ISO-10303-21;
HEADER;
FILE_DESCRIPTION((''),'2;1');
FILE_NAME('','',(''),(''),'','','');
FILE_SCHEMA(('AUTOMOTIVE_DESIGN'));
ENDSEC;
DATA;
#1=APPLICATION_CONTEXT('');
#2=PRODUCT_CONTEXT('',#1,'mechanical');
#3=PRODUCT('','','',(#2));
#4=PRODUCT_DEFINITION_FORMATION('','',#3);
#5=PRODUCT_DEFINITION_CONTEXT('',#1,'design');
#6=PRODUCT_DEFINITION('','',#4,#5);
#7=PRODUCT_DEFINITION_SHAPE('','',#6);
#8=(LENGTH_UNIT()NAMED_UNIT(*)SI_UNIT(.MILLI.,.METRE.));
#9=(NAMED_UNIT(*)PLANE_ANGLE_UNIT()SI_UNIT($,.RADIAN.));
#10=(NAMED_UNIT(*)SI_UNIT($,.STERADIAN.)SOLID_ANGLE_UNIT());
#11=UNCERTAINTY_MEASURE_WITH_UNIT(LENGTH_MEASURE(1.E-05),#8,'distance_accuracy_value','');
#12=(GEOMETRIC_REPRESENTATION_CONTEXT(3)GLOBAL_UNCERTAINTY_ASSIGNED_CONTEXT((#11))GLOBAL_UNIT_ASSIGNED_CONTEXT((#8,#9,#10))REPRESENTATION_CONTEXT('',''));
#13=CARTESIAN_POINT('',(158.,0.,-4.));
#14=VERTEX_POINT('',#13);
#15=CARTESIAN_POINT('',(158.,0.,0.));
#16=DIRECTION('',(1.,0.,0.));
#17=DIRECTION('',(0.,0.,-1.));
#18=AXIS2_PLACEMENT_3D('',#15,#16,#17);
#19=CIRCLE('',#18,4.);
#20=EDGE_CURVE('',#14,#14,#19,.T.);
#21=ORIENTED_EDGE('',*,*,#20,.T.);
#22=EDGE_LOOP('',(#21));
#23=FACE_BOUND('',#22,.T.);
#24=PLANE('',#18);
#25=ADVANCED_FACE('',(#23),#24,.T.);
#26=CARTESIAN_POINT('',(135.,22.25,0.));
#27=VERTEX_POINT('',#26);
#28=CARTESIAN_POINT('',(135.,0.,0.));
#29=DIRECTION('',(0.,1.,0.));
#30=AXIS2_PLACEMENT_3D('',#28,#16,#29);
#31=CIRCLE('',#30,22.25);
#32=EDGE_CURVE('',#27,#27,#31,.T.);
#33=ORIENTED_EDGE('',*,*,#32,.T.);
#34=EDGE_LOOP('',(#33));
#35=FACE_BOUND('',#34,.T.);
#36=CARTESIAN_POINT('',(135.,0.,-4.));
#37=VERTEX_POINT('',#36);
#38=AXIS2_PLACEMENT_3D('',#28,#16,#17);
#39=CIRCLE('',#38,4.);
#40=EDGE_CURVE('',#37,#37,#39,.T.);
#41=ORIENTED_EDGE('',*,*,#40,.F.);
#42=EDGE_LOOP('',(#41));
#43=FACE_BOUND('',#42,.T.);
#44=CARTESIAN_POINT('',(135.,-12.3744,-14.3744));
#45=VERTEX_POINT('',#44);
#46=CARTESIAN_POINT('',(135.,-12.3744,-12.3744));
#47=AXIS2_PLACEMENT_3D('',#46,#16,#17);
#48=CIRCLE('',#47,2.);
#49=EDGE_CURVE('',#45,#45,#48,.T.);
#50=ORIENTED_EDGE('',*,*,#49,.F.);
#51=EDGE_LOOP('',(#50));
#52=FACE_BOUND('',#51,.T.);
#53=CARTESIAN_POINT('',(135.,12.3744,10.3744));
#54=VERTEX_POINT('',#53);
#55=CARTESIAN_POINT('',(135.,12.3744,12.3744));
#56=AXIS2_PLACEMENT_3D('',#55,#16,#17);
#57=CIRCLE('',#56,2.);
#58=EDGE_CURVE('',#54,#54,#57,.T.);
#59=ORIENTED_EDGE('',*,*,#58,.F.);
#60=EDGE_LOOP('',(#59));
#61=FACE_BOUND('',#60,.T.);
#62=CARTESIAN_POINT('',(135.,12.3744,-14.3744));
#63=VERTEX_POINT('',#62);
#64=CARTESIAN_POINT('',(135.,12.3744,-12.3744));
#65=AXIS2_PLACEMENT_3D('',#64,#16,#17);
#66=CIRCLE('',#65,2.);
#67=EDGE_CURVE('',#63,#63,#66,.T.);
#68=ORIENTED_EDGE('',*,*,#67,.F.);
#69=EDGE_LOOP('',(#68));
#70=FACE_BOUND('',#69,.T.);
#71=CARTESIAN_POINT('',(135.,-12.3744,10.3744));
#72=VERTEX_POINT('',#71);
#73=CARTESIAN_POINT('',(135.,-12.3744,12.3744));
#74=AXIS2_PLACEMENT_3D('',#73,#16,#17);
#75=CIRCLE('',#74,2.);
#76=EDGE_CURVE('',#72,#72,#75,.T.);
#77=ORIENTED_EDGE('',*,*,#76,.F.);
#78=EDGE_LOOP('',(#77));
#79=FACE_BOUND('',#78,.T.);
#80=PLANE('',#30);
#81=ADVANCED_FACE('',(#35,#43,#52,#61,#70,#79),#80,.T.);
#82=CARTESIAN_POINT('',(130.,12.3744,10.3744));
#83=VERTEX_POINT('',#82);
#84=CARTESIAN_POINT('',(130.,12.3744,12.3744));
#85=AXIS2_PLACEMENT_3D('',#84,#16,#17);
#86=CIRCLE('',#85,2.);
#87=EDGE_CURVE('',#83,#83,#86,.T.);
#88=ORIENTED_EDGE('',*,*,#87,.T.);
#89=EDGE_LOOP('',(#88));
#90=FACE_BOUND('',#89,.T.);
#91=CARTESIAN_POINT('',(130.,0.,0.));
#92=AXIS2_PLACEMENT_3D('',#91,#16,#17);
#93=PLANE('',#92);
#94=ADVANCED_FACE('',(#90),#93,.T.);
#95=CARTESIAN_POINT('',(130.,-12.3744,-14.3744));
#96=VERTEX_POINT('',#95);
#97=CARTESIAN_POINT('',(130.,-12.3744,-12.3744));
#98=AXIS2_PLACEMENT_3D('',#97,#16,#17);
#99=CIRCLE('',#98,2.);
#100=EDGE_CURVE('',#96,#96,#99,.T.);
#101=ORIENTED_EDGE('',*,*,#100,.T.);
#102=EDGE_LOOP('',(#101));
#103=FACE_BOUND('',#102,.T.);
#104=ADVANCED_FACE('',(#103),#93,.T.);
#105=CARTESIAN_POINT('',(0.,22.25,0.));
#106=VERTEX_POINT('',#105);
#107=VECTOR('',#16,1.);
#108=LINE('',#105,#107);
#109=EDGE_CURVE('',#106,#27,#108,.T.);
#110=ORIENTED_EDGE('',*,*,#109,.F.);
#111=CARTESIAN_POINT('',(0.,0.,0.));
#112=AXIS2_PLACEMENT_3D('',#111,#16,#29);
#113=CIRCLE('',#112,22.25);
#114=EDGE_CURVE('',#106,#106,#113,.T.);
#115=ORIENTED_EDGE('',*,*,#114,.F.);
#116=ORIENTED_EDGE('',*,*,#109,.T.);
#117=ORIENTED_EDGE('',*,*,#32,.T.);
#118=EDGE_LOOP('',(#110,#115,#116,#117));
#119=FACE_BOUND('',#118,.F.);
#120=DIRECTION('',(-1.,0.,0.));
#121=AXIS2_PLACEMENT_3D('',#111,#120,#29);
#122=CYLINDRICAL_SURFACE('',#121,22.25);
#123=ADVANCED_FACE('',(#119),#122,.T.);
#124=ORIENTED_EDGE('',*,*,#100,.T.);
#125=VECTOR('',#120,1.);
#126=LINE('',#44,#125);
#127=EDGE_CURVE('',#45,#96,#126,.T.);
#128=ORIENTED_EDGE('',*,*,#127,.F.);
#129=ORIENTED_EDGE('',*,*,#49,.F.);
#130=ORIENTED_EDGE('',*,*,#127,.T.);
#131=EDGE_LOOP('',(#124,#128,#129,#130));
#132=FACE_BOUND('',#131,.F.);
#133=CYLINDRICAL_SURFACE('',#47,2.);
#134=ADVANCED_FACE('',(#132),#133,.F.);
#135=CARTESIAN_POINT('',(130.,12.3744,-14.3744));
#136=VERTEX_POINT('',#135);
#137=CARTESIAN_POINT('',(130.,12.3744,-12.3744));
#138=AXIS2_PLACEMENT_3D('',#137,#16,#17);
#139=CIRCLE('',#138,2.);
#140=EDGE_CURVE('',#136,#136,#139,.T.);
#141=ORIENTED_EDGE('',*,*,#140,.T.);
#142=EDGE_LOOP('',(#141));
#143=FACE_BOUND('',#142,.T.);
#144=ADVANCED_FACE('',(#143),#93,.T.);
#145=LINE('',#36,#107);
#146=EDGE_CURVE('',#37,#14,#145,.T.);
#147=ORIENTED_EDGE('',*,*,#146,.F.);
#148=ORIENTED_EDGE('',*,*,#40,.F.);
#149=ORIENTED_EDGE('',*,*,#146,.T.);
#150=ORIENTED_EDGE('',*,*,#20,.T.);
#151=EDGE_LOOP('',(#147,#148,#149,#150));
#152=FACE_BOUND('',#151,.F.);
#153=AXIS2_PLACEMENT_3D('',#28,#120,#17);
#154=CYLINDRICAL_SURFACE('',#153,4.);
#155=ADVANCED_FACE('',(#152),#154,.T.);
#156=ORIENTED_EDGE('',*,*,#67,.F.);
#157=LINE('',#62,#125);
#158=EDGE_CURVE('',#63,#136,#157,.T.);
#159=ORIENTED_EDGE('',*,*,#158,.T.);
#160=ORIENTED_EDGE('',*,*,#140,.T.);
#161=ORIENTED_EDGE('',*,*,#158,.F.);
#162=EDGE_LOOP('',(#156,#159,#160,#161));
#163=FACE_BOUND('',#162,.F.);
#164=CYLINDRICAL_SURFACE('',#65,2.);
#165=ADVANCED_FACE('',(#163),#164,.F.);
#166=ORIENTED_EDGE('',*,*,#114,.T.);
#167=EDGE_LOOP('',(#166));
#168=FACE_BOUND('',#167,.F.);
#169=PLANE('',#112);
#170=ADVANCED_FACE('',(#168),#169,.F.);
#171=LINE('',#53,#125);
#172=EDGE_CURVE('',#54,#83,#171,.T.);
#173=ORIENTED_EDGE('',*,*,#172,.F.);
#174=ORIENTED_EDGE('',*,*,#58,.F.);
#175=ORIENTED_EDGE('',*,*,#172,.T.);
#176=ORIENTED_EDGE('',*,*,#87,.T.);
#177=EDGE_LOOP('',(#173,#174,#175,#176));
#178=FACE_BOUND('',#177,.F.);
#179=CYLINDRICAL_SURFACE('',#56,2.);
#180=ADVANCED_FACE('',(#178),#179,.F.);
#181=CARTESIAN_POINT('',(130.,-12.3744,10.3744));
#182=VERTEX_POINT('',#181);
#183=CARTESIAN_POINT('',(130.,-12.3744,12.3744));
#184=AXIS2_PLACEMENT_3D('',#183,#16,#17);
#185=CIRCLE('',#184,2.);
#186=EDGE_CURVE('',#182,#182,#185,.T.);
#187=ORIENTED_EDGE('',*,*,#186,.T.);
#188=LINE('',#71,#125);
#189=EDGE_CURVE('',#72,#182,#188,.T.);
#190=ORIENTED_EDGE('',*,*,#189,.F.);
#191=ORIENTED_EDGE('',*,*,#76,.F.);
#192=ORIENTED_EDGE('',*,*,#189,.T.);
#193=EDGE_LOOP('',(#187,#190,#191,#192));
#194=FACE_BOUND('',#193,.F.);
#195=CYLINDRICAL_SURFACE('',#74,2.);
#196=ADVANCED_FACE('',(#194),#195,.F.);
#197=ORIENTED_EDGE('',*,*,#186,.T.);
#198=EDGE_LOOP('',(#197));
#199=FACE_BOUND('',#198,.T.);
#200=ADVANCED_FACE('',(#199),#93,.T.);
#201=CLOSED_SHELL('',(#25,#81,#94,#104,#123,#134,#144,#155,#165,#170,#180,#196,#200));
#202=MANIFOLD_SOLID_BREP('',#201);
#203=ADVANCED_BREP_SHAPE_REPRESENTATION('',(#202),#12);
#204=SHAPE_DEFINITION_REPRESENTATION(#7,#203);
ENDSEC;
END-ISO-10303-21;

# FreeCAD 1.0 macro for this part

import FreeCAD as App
import Part
import Sketcher

V = App.Vector
Q = App.Units.Quantity

doc = App.newDocument("Part")
params = doc.addObject("Spreadsheet::Sheet", "Params")
for row, (alias, value) in enumerate([
    ("sketch1_diameter", "44.5 mm"),
    ("pad1_length", "135 mm"),
    ("sketch2_diameter", "8 mm"),
    ("pad2_length", "23 mm"),
    ("sketch3_diameter", "4 mm"),
    ("pocket1_length", "5 mm"),
], start=1):
    params.set(f"A{row}", alias)
    params.set(f"B{row}", "=" + value)
    params.setAlias(f"B{row}", alias)

body = doc.addObject("PartDesign::Body", "Body")

# Sketch on YZ plane
sketch1 = doc.addObject("Sketcher::SketchObject", "Sketch")
body.addObject(sketch1)
sketch1.AttachmentSupport = (doc.YZ_Plane, [""])
sketch1.MapMode = "FlatFace"
sketch1.addGeometry(Part.Circle(V(0, 0, 0), V(0, 0, 1), 22), False)
sketch1.addConstraint([
    Sketcher.Constraint("Coincident", 0, 3, -1, 1),
    Sketcher.Constraint("Diameter", 0, Q("44.5 mm")),
])
sketch1.setExpression("Constraints[1]", "Params.sketch1_diameter")
pad1 = doc.addObject("PartDesign::Pad", "Pad")
body.addObject(pad1)
pad1.Profile = sketch1
pad1.setExpression("Length", "Params.pad1_length")

# Sketch on YZ plane
sketch2 = doc.addObject("Sketcher::SketchObject", "Sketch001")
body.addObject(sketch2)
sketch2.AttachmentSupport = (doc.YZ_Plane, [""])
sketch2.MapMode = "FlatFace"
sketch2.AttachmentOffset = App.Placement(V(0, 0, 135), App.Rotation())
sketch2.addGeometry(Part.Circle(V(0, 0, 0), V(0, 0, 1), 4), False)
sketch2.addConstraint([
    Sketcher.Constraint("Coincident", 0, 3, -1, 1),
    Sketcher.Constraint("Diameter", 0, Q("8 mm")),
])
sketch2.setExpression("Constraints[1]", "Params.sketch2_diameter")
pad2 = doc.addObject("PartDesign::Pad", "Pad001")
body.addObject(pad2)
pad2.Profile = sketch2
pad2.setExpression("Length", "Params.pad2_length")

# Sketch on YZ plane
sketch3 = doc.addObject("Sketcher::SketchObject", "Sketch002")
body.addObject(sketch3)
sketch3.AttachmentSupport = (doc.YZ_Plane, [""])
sketch3.MapMode = "FlatFace"
sketch3.AttachmentOffset = App.Placement(V(0, 0, 135), App.Rotation())
sketch3.addGeometry([
    Part.Circle(V(-12.4, 12.4, 0), V(0, 0, 1), 2),
    Part.Circle(V(12.4, -12.4, 0), V(0, 0, 1), 2),
    Part.Circle(V(12.4, 12.4, 0), V(0, 0, 1), 2),
    Part.Circle(V(-12.4, -12.4, 0), V(0, 0, 1), 2),
], False)
sketch3.addConstraint([
    Sketcher.Constraint("Equal", 0, 1),
    Sketcher.Constraint("Equal", 1, 2),
    Sketcher.Constraint("Equal", 2, 3),
    Sketcher.Constraint("Symmetric", 0, 3, 1, 3, -1, 1),
    Sketcher.Constraint("Symmetric", 2, 3, 3, 3, -1, 1),
    Sketcher.Constraint("Symmetric", 0, 3, 2, 3, -2),
    Sketcher.Constraint("Diameter", 0, Q("4 mm")),
    Sketcher.Constraint("DistanceX", 0, 3, -1, 1, Q("12.3744 mm")),
    Sketcher.Constraint("DistanceY", -1, 1, 0, 3, Q("12.3744 mm")),
])
sketch3.setExpression("Constraints[6]", "Params.sketch3_diameter")
pocket1 = doc.addObject("PartDesign::Pocket", "Pocket")
body.addObject(pocket1)
pocket1.Profile = sketch3
pocket1.setExpression("Length", "Params.pocket1_length")

doc.recompute()
